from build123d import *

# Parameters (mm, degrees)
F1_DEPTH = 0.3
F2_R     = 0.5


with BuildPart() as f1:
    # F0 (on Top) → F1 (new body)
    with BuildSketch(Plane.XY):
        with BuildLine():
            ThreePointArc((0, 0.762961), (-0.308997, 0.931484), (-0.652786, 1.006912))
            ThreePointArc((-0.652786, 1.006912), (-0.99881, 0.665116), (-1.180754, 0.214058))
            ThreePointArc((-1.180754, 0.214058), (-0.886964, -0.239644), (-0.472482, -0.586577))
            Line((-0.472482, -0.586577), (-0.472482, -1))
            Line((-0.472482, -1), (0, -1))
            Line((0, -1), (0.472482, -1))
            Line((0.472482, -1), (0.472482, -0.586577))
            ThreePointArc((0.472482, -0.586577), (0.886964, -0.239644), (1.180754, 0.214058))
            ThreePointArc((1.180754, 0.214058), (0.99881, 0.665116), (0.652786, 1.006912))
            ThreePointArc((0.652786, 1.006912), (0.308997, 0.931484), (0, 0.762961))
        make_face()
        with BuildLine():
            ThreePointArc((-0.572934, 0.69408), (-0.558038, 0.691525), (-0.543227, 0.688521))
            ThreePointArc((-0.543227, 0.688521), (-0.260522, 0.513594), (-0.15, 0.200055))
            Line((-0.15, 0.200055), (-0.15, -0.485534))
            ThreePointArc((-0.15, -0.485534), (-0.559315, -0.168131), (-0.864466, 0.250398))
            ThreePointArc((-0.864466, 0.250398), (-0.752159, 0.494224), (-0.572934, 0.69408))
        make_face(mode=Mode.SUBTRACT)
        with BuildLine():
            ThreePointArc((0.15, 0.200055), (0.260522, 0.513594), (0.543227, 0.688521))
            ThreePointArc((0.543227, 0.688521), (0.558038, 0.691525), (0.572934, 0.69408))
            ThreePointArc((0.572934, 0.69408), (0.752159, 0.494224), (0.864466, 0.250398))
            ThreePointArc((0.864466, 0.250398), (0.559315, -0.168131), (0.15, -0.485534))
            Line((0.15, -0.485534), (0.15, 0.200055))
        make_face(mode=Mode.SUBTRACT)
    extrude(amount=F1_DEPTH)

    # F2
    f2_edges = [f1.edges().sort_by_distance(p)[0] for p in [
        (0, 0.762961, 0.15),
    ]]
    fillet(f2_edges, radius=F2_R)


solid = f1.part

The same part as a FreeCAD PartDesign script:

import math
import FreeCAD as App
import Part
import Sketcher
from FreeCAD import Vector
Q = App.Units.Quantity


def edges_at(feature, points):
    """Names of the edges that pass closest to the given points."""
    edges = feature.Shape.Edges
    near = lambda p: min(range(len(edges)), key=lambda i: edges[i].distToShape(Part.Vertex(*p))[0])
    return sorted({f"Edge{near(p) + 1}" for p in points})

doc = App.newDocument("Part")
params = doc.addObject("Spreadsheet::Sheet", "Params")
for row, (alias, value) in enumerate([
    ("sketch1_radius", "0.9 mm"),
    ("sketch1_radius2", "0.5 mm"),
    ("pad1_length", "0.3 mm"),
    ("fillet_radius", "0.5 mm"),
], start=1):
    params.set(f"A{row}", alias)
    params.set(f"B{row}", "=" + value)
    params.setAlias(f"B{row}", alias)

body = doc.addObject("PartDesign::Body", "Body")

# Sketch on XY plane
sketch1 = body.newObject("Sketcher::SketchObject", "Sketch")
sketch1.AttachmentSupport = (doc.getObject("XY_Plane"), [""])
sketch1.MapMode = "FlatFace"
sketch1.addGeometry(Part.ArcOfCircle(Part.Circle(Vector(-0.745, -0.236, 0), Vector(0, 0, 1), 1.246), math.radians(53), math.radians(86)), False)
sketch1.addGeometry(Part.ArcOfCircle(Part.Circle(Vector(0, 0, 0), Vector(0, 0, 1), 1.2), math.radians(123), math.radians(170)), False)
sketch1.addGeometry(Part.ArcOfCircle(Part.Circle(Vector(0.471, 0.962, 0), Vector(0, 0, 1), 1.813), math.radians(-156), math.radians(-121)), False)
sketch1.addGeometry(Part.LineSegment(Vector(-0.472, -0.587, 0), Vector(-0.472, -1, 0)), False)
sketch1.addGeometry(Part.LineSegment(Vector(-0.472, -1, 0), Vector(0.472, -1, 0)), False)
sketch1.addGeometry(Part.LineSegment(Vector(0.472, -1, 0), Vector(0.472, -0.587, 0)), False)
sketch1.addGeometry(Part.ArcOfCircle(Part.Circle(Vector(-0.471, 0.962, 0), Vector(0, 0, 1), 1.813), math.radians(-59), math.radians(-24)), False)
sketch1.addGeometry(Part.ArcOfCircle(Part.Circle(Vector(0, 0, 0), Vector(0, 0, 1), 1.2), math.radians(10), math.radians(57)), False)
sketch1.addGeometry(Part.ArcOfCircle(Part.Circle(Vector(0.745, -0.236, 0), Vector(0, 0, 1), 1.246), math.radians(94), math.radians(127)), False)
sketch1.addGeometry(Part.ArcOfCircle(Part.Circle(Vector(0, 0, 0), Vector(0, 0, 1), 0.9), math.radians(130), math.radians(164)), False)
sketch1.addGeometry(Part.ArcOfCircle(Part.Circle(Vector(-0.65, 0.2, 0), Vector(0, 0, 1), 0.5), math.radians(77.67), math.radians(81.13)), False)
sketch1.addGeometry(Part.ArcOfCircle(Part.Circle(Vector(-0.65, 0.2, 0), Vector(0, 0, 1), 0.5), math.radians(0), math.radians(78)), False)
sketch1.addGeometry(Part.LineSegment(Vector(-0.15, 0.2, 0), Vector(-0.15, -0.486, 0)), False)
sketch1.addGeometry(Part.ArcOfCircle(Part.Circle(Vector(0.767, 1.119, 0), Vector(0, 0, 1), 1.848), math.radians(-152), math.radians(-120)), False)
sketch1.addGeometry(Part.LineSegment(Vector(0.15, -0.486, 0), Vector(0.15, 0.2, 0)), False)
sketch1.addGeometry(Part.ArcOfCircle(Part.Circle(Vector(0.65, 0.2, 0), Vector(0, 0, 1), 0.5), math.radians(102), math.radians(180)), False)
sketch1.addGeometry(Part.ArcOfCircle(Part.Circle(Vector(0.65, 0.2, 0), Vector(0, 0, 1), 0.5), math.radians(98.87), math.radians(102.33)), False)
sketch1.addGeometry(Part.ArcOfCircle(Part.Circle(Vector(0, 0, 0), Vector(0, 0, 1), 0.9), math.radians(16), math.radians(50)), False)
sketch1.addGeometry(Part.ArcOfCircle(Part.Circle(Vector(-0.767, 1.119, 0), Vector(0, 0, 1), 1.848), math.radians(-60), math.radians(-28)), False)
sketch1.addConstraint(Sketcher.Constraint("Coincident", 0, 2, 1, 1))
sketch1.addConstraint(Sketcher.Constraint("Coincident", 1, 2, 2, 1))
sketch1.addConstraint(Sketcher.Constraint("Coincident", 2, 2, 3, 1))
sketch1.addConstraint(Sketcher.Constraint("Coincident", 3, 2, 4, 1))
sketch1.addConstraint(Sketcher.Constraint("Coincident", 4, 2, 5, 1))
sketch1.addConstraint(Sketcher.Constraint("Coincident", 5, 2, 6, 1))
sketch1.addConstraint(Sketcher.Constraint("Coincident", 6, 2, 7, 1))
sketch1.addConstraint(Sketcher.Constraint("Coincident", 7, 2, 8, 1))
sketch1.addConstraint(Sketcher.Constraint("Coincident", 8, 2, 0, 1))
sketch1.addConstraint(Sketcher.Constraint("Coincident", 9, 1, 10, 2))
sketch1.addConstraint(Sketcher.Constraint("Coincident", 10, 1, 11, 2))
sketch1.addConstraint(Sketcher.Constraint("Tangent", 11, 1, 12, 1))
sketch1.addConstraint(Sketcher.Constraint("Coincident", 12, 2, 13, 2))
sketch1.addConstraint(Sketcher.Constraint("Coincident", 13, 1, 9, 2))
sketch1.addConstraint(Sketcher.Constraint("Tangent", 14, 2, 15, 2))
sketch1.addConstraint(Sketcher.Constraint("Coincident", 15, 1, 16, 2))
sketch1.addConstraint(Sketcher.Constraint("Coincident", 16, 1, 17, 2))
sketch1.addConstraint(Sketcher.Constraint("Coincident", 17, 1, 18, 2))
sketch1.addConstraint(Sketcher.Constraint("Coincident", 18, 1, 14, 1))
sketch1.addConstraint(Sketcher.Constraint("Vertical", 3))
sketch1.addConstraint(Sketcher.Constraint("Horizontal", 4))
sketch1.addConstraint(Sketcher.Constraint("Vertical", 5))
sketch1.addConstraint(Sketcher.Constraint("Vertical", 12))
sketch1.addConstraint(Sketcher.Constraint("Vertical", 14))
sketch1.addConstraint(Sketcher.Constraint("Coincident", 1, 3, -1, 1))
sketch1.addConstraint(Sketcher.Constraint("Coincident", 7, 3, -1, 1))
sketch1.addConstraint(Sketcher.Constraint("Coincident", 9, 3, -1, 1))
sketch1.addConstraint(Sketcher.Constraint("Coincident", 17, 3, -1, 1))
sketch1.addConstraint(Sketcher.Constraint("Equal", 2, 6))
sketch1.addConstraint(Sketcher.Constraint("Equal", 1, 7))
sketch1.addConstraint(Sketcher.Constraint("Equal", 0, 8))
sketch1.addConstraint(Sketcher.Constraint("Equal", 11, 15))
sketch1.addConstraint(Sketcher.Constraint("Equal", 10, 16))
sketch1.addConstraint(Sketcher.Constraint("Equal", 9, 17))
sketch1.addConstraint(Sketcher.Constraint("Equal", 13, 18))
sketch1.addConstraint(Sketcher.Constraint("Symmetric", 2, 3, 6, 3, -2))
sketch1.addConstraint(Sketcher.Constraint("Symmetric", 0, 3, 8, 3, -2))
sketch1.addConstraint(Sketcher.Constraint("Symmetric", 11, 3, 15, 3, -2))
sketch1.addConstraint(Sketcher.Constraint("Symmetric", 13, 3, 18, 3, -2))
sketch1.addConstraint(Sketcher.Constraint("Horizontal", 10, 3, 16, 3))
sketch1.addConstraint(Sketcher.Constraint("Horizontal", 2, 2, 5, 2))
sketch1.addConstraint(Sketcher.Constraint("Horizontal", 10, 1, 15, 1))
sketch1.addConstraint(Sketcher.Constraint("Radius", 9, Q("0.9 mm")))
sketch1.addConstraint(Sketcher.Constraint("Radius", 11, Q("0.5 mm")))
sketch1.addConstraint(Sketcher.Constraint("DistanceY", 3, 2, -1, 1, Q("1 mm")))
sketch1.addConstraint(Sketcher.Constraint("DistanceX", 11, 1, 14, 2, Q("0.3 mm")))
sketch1.addConstraint(Sketcher.Constraint("Radius", 10, Q("0.499819 mm")))
sketch1.addConstraint(Sketcher.Constraint("DistanceX", -1, 1, 2, 3, Q("0.471001 mm")))
sketch1.addConstraint(Sketcher.Constraint("Radius", 0, Q("1.246476 mm")))
sketch1.addConstraint(Sketcher.Constraint("Radius", 1, Q("1.200002 mm")))
sketch1.addConstraint(Sketcher.Constraint("Radius", 2, Q("1.813066 mm")))
sketch1.addConstraint(Sketcher.Constraint("Radius", 13, Q("1.847965 mm")))
sketch1.addConstraint(Sketcher.Constraint("DistanceY", 12, 2, 12, 1, Q("0.685589 mm")))
sketch1.addConstraint(Sketcher.Constraint("DistanceX", 18, 3, 0, 2, Q("0.113802 mm")))
sketch1.addConstraint(Sketcher.Constraint("DistanceX", 4, 1, 4, 2, Q("0.944964 mm")))
sketch1.addConstraint(Sketcher.Constraint("DistanceY", 3, 2, 3, 1, Q("0.413423 mm")))
sketch1.addConstraint(Sketcher.Constraint("DistanceX", 0, 3, -1, 1, Q("0.745341 mm")))
sketch1.addConstraint(Sketcher.Constraint("DistanceY", -1, 1, 8, 2, Q("0.762961 mm")))
sketch1.addConstraint(Sketcher.Constraint("DistanceY", -1, 1, 9, 1, Q("0.69408 mm")))
sketch1.addConstraint(Sketcher.Constraint("DistanceY", -1, 1, 10, 1, Q("0.688521 mm")))
sketch1.addConstraint(Sketcher.Constraint("DistanceX", 0, 3, 10, 3, Q("0.095369 mm")))
sketch1.setExpression("Constraints[42]", "Params.sketch1_radius")
sketch1.setExpression("Constraints[43]", "Params.sketch1_radius2")
pad1 = body.newObject("PartDesign::Pad", "Pad")
pad1.Profile = sketch1
pad1.setExpression("Length", "Params.pad1_length")
doc.recompute()

fillet = body.newObject("PartDesign::Fillet", "Fillet")
fillet.Base = (pad1, edges_at(pad1, [(0, 0.763, 0.15)]))
fillet.setExpression("Radius", "Params.fillet_radius")

doc.recompute()
